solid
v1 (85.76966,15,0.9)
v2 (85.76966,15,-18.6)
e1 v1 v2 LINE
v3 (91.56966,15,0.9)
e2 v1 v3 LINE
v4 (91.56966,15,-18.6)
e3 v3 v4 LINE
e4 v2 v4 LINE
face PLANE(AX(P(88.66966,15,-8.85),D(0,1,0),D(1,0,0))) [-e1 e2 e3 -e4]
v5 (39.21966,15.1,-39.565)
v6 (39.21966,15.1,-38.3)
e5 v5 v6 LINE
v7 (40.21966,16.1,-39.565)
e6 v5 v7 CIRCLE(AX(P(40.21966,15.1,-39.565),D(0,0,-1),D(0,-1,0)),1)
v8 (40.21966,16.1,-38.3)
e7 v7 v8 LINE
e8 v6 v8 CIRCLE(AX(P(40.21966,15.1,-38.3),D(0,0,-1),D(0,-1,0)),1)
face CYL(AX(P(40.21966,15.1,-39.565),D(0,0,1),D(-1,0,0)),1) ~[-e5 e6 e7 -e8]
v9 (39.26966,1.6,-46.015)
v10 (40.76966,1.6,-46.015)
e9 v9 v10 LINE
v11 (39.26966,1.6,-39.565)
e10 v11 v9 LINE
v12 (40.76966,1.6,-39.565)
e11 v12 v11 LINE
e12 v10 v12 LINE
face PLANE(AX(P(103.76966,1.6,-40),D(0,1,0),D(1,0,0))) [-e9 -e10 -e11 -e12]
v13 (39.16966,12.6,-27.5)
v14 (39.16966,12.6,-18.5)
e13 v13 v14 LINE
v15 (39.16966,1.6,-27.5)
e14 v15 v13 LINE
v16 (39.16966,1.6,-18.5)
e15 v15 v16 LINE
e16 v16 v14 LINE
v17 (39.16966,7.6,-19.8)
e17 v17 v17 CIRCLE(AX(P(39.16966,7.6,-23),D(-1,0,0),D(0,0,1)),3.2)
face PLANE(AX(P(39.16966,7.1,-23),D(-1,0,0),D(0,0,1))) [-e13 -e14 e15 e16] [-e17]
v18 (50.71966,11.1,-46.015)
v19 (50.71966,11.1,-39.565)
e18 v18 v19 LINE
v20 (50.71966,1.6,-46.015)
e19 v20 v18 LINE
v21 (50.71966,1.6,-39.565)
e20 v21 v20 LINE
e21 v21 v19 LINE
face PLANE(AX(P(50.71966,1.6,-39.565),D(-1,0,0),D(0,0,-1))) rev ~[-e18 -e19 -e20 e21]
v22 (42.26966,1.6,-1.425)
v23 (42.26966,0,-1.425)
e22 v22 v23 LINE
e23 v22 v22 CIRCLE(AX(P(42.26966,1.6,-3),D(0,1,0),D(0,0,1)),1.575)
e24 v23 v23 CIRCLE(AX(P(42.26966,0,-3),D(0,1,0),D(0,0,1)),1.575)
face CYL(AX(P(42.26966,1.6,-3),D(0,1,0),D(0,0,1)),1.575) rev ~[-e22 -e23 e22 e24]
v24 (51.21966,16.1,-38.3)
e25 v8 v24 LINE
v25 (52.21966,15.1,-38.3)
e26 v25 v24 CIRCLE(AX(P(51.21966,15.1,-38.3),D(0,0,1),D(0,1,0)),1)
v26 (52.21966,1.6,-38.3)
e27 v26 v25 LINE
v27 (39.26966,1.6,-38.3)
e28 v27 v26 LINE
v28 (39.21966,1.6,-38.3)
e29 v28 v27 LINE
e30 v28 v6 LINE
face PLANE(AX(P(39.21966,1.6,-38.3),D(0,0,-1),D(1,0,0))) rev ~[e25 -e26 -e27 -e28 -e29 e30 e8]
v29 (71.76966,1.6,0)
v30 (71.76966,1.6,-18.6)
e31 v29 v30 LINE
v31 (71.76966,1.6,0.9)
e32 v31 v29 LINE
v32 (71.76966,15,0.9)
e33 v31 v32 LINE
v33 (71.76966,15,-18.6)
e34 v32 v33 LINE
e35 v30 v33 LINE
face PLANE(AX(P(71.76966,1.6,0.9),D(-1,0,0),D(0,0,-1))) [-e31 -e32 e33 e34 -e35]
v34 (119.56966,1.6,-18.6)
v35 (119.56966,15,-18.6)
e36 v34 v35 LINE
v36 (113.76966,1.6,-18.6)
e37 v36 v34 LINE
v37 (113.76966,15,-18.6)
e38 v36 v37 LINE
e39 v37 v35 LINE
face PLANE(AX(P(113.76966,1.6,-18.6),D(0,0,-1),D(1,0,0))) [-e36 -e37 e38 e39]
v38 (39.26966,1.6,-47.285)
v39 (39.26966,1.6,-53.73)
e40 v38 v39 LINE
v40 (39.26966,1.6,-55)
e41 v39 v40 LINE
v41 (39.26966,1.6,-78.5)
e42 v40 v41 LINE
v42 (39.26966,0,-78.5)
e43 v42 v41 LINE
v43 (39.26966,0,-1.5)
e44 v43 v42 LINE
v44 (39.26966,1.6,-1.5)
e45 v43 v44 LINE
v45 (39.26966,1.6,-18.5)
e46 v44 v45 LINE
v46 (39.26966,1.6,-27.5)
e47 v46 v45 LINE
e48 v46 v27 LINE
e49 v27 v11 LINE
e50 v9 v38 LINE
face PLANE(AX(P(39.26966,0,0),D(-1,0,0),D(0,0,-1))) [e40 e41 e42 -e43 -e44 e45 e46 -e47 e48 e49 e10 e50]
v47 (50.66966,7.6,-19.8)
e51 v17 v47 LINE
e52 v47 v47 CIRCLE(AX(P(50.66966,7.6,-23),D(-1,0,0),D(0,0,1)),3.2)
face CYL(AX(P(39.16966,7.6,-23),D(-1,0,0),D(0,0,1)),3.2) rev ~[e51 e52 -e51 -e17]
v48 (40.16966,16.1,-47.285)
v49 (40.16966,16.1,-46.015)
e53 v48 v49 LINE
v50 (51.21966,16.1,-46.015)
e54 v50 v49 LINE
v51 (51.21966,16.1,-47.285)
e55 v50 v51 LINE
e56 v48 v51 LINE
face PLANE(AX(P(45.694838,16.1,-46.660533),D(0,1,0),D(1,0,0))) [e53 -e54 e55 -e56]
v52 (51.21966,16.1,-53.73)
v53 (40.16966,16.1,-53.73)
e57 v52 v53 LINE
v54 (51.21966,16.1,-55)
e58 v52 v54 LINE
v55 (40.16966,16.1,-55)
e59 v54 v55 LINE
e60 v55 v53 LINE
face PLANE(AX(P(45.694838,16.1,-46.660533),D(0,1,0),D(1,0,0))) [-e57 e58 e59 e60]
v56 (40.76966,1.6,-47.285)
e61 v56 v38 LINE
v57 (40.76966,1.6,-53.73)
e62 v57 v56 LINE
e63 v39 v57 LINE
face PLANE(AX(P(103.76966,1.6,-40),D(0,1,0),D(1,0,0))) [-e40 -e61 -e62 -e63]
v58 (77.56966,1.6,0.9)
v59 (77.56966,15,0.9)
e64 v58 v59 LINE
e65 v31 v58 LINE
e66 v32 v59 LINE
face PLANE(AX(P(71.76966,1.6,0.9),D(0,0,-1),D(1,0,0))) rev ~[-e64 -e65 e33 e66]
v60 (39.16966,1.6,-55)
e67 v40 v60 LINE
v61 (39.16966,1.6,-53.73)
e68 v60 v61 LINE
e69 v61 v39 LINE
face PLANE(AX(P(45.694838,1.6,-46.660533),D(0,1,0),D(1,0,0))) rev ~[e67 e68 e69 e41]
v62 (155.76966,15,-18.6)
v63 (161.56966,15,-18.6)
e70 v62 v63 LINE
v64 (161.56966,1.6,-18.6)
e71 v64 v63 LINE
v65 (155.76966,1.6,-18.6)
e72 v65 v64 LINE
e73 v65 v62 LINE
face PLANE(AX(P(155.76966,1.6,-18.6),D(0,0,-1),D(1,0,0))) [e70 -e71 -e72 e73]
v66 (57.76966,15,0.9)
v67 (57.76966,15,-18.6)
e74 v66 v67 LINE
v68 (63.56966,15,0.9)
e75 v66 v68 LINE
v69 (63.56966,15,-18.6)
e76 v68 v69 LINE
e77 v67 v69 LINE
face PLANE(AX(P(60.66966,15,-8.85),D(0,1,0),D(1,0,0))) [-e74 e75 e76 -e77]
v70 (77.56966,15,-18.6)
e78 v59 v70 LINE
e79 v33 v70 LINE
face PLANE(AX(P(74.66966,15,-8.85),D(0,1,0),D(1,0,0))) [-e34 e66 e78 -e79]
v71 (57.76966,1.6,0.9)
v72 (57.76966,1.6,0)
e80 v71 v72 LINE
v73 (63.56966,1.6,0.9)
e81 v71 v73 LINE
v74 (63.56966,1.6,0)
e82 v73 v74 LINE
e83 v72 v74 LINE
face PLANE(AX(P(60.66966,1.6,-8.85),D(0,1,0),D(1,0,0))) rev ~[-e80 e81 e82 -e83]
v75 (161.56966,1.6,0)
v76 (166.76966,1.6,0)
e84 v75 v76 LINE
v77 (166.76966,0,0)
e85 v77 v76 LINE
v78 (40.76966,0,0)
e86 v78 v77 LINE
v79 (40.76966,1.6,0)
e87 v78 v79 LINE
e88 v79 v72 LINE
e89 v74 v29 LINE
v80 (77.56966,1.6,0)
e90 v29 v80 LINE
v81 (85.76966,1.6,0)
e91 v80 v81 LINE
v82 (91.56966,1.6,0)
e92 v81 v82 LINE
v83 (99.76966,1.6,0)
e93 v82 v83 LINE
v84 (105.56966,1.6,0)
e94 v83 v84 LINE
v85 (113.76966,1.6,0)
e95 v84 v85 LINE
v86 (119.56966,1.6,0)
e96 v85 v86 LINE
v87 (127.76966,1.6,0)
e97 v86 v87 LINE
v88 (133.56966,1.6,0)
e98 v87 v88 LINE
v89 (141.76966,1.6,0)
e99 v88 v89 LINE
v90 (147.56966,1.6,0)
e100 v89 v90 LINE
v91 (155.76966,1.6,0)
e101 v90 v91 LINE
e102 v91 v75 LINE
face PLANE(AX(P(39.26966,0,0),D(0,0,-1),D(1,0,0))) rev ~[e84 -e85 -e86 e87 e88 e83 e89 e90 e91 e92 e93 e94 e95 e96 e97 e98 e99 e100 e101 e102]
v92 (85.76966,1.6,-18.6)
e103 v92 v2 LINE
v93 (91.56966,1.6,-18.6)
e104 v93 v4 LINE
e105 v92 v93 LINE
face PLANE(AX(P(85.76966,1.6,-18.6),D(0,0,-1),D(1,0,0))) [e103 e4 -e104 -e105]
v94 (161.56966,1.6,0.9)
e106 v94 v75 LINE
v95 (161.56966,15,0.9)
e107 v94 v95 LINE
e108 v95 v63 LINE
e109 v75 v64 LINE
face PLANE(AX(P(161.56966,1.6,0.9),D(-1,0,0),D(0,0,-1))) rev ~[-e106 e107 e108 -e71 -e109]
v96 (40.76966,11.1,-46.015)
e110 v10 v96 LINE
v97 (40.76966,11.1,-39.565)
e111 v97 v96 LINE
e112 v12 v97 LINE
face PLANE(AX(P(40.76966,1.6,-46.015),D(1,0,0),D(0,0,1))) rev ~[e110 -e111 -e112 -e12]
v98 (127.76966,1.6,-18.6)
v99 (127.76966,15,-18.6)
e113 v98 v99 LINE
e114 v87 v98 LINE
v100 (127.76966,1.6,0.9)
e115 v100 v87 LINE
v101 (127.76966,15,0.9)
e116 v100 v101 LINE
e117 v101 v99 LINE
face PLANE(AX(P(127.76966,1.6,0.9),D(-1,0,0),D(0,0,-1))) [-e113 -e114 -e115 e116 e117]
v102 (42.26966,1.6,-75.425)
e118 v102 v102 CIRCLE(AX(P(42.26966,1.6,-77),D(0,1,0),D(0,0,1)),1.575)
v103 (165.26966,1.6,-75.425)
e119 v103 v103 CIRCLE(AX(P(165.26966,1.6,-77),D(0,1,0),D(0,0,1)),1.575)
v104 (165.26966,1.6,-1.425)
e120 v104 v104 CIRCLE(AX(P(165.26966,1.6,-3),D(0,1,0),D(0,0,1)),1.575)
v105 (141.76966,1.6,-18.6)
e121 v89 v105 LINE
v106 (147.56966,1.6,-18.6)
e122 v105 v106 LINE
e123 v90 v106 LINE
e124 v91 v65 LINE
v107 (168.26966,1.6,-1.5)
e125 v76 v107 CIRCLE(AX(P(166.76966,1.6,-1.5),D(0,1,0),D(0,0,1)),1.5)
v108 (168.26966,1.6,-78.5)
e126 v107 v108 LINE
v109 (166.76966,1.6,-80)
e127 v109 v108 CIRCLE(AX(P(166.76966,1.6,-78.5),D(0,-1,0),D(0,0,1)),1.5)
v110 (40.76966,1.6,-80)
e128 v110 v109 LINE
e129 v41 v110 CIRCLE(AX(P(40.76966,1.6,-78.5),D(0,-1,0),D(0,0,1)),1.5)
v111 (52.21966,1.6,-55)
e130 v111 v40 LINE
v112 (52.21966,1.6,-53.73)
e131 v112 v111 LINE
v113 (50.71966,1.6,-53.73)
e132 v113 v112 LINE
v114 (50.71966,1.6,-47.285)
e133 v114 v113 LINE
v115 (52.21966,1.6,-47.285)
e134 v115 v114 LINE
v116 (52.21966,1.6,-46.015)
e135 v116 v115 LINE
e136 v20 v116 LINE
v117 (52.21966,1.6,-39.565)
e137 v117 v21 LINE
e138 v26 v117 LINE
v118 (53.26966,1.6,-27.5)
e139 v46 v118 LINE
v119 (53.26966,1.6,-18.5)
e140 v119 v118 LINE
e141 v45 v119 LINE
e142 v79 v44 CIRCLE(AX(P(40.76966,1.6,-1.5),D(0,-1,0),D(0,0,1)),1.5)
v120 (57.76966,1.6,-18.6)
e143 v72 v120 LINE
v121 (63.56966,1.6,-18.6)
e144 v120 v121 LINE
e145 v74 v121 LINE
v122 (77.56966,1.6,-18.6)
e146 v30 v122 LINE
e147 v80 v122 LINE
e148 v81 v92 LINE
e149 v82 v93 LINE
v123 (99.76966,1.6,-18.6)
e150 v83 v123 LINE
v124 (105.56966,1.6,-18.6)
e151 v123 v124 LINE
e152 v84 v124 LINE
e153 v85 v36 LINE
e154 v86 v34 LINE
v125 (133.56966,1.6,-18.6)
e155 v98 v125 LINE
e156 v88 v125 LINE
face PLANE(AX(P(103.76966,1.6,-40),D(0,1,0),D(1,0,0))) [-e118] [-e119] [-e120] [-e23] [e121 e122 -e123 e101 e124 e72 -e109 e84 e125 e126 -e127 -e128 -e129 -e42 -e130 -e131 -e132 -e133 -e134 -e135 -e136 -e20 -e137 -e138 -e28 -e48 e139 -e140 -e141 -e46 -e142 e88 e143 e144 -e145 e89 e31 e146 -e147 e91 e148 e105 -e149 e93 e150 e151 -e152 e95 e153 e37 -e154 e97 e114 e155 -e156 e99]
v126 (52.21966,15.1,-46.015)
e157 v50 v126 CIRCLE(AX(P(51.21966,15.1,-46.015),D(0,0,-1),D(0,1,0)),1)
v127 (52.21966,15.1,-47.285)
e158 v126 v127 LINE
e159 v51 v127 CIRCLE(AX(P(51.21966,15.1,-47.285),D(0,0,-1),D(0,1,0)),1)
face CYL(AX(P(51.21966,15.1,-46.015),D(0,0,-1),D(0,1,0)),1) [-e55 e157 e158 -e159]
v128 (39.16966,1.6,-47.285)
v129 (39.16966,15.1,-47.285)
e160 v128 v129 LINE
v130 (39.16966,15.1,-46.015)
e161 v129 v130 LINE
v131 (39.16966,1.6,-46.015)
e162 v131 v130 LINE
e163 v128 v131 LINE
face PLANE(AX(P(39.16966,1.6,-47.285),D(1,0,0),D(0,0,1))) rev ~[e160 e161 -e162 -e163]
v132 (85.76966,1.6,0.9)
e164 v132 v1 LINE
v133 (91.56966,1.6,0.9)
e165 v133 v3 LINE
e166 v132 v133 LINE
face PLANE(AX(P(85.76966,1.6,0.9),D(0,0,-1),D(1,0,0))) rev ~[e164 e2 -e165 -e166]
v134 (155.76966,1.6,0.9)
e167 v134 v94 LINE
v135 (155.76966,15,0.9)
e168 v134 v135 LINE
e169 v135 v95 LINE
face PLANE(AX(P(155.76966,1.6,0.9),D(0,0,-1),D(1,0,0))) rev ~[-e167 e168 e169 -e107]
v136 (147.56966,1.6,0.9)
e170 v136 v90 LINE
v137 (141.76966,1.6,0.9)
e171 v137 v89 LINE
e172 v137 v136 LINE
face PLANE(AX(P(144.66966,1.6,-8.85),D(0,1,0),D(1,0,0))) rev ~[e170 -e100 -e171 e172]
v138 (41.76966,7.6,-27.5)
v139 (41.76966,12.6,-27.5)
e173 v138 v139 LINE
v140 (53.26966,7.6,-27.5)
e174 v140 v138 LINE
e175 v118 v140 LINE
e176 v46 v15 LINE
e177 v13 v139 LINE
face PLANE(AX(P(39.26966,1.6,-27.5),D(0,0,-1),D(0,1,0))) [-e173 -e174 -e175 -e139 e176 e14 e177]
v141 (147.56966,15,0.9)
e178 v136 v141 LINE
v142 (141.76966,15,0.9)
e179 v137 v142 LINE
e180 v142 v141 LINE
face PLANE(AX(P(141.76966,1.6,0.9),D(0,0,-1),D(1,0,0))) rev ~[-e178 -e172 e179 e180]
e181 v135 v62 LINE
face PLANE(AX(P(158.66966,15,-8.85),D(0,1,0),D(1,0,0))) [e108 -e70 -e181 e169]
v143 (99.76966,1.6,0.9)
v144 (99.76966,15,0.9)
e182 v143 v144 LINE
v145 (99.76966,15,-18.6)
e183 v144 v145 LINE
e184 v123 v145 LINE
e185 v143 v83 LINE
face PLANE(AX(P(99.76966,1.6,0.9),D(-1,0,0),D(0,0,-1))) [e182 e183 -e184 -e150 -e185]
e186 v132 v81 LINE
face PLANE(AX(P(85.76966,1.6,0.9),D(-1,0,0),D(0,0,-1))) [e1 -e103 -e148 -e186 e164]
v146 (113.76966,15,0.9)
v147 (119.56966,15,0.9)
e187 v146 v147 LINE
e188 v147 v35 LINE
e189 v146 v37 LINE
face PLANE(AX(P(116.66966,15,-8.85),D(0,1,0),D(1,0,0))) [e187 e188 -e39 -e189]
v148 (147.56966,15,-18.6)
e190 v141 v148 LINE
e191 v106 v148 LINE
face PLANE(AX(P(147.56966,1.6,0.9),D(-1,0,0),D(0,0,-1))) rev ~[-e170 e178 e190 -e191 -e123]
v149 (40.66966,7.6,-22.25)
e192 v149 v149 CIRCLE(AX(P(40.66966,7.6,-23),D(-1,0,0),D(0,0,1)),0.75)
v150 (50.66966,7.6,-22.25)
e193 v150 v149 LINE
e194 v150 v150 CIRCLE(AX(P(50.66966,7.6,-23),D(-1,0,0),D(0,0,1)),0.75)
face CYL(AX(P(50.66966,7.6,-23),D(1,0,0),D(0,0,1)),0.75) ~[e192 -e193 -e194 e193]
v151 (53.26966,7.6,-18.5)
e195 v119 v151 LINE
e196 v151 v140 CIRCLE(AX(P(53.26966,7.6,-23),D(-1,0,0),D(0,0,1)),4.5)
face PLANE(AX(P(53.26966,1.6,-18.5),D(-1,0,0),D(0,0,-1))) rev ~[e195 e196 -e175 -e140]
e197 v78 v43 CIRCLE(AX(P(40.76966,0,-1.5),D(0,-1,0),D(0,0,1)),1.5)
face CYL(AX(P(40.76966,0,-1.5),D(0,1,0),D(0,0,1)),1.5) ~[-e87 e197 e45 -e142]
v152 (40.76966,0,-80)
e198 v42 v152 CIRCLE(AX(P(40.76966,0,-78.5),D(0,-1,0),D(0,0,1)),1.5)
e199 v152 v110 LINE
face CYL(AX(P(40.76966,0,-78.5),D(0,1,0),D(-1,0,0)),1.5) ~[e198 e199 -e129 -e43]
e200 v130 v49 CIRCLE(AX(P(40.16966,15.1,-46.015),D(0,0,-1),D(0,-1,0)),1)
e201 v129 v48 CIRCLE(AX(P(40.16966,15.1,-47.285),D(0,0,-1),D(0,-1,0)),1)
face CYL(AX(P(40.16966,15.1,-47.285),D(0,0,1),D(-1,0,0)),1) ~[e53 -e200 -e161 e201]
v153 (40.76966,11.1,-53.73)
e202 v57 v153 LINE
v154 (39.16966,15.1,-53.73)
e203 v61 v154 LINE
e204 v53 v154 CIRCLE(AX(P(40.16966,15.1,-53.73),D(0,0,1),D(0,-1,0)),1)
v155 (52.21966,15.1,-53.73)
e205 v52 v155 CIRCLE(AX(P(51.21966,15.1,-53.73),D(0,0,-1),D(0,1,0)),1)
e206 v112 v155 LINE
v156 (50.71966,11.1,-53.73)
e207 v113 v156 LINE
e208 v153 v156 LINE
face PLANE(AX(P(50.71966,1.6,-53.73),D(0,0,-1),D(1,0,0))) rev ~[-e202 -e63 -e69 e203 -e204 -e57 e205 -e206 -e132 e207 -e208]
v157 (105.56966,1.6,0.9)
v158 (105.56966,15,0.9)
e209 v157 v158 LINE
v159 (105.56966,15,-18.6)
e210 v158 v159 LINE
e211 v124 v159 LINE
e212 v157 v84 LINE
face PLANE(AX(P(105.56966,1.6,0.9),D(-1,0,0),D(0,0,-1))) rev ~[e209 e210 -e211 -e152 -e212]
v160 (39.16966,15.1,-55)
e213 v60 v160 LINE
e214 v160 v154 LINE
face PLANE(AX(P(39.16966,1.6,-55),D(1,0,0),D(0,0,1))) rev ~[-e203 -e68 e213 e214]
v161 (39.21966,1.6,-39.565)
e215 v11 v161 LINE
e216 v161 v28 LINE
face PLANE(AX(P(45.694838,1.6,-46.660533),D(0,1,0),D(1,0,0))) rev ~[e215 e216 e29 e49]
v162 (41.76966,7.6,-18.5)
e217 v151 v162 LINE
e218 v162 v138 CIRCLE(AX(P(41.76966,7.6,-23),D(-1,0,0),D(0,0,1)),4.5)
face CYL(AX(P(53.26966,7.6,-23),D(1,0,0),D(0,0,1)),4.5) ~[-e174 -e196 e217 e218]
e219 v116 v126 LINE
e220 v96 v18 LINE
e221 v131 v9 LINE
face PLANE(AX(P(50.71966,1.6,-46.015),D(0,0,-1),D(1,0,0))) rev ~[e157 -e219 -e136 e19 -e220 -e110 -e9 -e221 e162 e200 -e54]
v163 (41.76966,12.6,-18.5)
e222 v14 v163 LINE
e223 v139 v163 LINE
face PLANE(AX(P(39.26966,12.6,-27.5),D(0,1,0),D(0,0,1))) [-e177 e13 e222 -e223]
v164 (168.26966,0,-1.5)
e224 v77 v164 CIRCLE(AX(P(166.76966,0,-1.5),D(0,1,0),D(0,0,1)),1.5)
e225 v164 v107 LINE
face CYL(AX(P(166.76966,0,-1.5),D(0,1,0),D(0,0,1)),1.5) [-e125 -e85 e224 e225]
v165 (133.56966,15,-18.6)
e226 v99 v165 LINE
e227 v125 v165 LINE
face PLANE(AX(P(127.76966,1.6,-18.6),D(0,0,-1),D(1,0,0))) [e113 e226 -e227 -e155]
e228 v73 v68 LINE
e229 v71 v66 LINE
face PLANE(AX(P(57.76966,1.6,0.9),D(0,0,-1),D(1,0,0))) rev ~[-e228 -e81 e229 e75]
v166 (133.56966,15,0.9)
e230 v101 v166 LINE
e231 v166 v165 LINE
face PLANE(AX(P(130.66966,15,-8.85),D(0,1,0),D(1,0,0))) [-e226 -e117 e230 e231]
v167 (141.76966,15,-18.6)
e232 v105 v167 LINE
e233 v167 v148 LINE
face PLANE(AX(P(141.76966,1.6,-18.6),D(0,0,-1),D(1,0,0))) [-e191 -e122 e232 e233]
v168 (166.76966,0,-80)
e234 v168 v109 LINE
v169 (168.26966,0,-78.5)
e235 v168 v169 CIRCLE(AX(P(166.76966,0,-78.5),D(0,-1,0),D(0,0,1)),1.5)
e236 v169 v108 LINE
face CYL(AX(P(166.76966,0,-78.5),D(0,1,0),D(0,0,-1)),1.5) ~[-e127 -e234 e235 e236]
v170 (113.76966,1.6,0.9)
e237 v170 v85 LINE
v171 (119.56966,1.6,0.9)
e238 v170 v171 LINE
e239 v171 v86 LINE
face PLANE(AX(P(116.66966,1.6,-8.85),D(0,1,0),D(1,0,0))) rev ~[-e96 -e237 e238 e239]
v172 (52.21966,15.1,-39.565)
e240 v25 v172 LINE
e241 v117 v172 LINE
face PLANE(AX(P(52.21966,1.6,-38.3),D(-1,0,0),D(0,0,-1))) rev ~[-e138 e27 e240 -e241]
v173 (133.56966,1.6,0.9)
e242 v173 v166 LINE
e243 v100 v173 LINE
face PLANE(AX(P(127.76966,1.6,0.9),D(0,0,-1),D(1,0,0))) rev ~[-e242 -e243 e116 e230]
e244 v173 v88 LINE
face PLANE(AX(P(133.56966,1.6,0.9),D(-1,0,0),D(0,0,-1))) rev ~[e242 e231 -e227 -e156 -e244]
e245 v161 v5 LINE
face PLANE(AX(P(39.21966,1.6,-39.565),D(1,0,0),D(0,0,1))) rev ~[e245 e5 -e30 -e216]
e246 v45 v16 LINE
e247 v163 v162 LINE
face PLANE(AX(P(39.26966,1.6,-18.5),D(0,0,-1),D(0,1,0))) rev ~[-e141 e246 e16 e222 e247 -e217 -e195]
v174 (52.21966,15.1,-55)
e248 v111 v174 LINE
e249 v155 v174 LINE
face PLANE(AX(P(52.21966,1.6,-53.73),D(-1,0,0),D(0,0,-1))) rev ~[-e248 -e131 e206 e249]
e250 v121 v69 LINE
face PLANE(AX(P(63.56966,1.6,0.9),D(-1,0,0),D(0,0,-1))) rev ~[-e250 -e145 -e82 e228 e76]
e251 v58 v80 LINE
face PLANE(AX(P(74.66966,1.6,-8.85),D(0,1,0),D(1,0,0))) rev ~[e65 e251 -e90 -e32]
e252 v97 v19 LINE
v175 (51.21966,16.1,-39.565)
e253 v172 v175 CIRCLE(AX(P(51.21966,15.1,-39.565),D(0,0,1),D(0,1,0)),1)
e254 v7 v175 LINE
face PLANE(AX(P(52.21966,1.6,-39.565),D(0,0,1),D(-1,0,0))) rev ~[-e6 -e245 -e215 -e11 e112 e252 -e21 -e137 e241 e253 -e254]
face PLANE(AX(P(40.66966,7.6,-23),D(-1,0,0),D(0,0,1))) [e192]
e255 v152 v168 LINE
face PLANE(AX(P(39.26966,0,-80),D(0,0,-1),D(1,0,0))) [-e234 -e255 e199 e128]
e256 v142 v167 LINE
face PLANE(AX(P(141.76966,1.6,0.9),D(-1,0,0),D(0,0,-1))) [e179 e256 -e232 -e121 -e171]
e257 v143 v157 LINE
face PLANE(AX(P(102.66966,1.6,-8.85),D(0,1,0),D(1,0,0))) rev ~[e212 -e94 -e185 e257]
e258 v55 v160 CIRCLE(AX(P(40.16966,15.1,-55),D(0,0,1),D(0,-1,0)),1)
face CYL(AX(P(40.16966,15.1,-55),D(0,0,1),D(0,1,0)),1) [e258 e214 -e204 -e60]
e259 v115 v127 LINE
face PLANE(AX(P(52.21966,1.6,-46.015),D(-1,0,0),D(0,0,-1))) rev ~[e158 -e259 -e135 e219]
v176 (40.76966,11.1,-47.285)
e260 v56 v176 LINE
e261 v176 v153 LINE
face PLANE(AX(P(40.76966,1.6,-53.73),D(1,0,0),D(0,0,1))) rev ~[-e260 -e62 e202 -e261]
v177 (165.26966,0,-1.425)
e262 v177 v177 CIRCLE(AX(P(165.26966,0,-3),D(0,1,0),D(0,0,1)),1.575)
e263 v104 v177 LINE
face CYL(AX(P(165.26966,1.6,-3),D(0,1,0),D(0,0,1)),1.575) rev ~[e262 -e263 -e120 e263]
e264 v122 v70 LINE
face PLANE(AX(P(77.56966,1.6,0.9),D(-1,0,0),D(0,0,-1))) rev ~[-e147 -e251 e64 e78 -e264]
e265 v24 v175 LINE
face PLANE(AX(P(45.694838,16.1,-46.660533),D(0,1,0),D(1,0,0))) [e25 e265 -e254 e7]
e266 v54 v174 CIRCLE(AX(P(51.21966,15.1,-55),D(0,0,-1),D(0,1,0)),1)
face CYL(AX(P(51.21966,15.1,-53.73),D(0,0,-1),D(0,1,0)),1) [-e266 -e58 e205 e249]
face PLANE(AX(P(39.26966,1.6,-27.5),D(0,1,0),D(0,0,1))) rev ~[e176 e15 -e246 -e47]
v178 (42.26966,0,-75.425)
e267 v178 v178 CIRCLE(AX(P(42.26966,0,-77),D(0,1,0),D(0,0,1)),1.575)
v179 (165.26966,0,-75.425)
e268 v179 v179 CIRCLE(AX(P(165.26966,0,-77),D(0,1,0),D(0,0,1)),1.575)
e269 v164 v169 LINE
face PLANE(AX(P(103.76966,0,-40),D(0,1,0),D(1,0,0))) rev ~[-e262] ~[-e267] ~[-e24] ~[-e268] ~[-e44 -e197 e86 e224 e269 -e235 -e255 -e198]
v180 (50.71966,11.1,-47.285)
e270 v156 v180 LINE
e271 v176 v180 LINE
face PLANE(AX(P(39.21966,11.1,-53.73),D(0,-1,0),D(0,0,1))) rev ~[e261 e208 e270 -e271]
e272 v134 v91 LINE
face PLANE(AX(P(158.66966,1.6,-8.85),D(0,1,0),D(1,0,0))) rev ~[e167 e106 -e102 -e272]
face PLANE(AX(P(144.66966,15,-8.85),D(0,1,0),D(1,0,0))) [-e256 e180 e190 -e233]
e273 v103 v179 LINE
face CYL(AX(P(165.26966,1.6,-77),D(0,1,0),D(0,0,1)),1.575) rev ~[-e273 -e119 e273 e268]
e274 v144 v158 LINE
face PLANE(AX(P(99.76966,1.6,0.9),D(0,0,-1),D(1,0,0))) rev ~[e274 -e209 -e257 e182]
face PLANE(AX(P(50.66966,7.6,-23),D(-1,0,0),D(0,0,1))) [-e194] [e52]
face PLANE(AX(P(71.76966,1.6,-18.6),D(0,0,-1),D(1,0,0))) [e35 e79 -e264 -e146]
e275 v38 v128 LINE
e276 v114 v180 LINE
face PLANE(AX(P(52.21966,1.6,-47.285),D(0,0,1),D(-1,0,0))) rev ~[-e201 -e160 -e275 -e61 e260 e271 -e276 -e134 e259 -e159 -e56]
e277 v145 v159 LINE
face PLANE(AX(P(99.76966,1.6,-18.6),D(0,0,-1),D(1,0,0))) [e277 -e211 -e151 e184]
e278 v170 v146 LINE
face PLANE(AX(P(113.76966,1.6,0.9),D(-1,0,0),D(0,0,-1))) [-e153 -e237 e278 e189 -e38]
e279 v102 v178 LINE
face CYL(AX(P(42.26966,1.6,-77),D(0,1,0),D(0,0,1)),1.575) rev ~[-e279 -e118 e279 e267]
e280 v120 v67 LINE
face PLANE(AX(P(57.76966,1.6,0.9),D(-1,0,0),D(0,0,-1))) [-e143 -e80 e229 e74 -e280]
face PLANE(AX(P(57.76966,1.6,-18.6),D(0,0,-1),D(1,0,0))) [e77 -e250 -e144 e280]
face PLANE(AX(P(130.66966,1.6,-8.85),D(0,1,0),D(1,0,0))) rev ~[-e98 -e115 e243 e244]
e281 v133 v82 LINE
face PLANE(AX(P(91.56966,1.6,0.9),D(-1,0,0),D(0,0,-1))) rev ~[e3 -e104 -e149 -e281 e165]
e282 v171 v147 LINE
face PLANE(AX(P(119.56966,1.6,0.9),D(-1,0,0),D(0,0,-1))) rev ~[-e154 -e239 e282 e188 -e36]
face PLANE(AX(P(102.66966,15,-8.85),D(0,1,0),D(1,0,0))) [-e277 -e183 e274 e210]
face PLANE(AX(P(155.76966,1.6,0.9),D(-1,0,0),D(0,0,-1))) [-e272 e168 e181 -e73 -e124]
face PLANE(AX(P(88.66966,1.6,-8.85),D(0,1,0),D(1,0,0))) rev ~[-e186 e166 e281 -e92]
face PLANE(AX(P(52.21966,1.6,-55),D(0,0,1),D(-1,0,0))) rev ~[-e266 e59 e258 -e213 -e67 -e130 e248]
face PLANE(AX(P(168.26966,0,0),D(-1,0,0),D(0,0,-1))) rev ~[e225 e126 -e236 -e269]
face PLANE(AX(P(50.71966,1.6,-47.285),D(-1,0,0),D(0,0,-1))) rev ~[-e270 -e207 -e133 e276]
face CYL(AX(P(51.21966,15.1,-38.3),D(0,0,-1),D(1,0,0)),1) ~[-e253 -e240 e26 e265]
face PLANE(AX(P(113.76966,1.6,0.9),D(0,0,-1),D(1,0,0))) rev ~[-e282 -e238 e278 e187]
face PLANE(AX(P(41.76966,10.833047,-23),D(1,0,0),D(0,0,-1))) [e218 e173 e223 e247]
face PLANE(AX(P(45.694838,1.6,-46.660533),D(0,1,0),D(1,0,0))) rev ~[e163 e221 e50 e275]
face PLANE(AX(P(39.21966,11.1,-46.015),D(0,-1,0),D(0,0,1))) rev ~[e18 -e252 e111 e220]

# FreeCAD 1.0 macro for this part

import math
import FreeCAD as App
import Part
import Sketcher
Q = App.Units.Quantity


def edges_at(feature, points):
    """Names of the edges that pass closest to the given points."""
    edges = feature.Shape.Edges
    near = lambda p: min(range(len(edges)), key=lambda i: edges[i].distToShape(Part.Vertex(*p))[0])
    return sorted({f"Edge{near(p) + 1}" for p in points})

doc = App.newDocument("Part")
params = doc.addObject("Spreadsheet::Sheet", "Params")
for row, (alias, value) in enumerate([
    ("sketch1_width", "129 mm"),
    ("sketch1_height", "80 mm"),
    ("pad1_length", "1.6 mm"),
    ("sketch2_diameter", "3.15 mm"),
    ("sketch3_width", "5.8 mm"),
    ("sketch3_height", "19.5 mm"),
    ("pad2_length", "13.4 mm"),
    ("fillet_radius", "1.5 mm"),
    ("sketch4_width", "14 mm"),
    ("sketch4_height", "9 mm"),
    ("pad3_length", "11 mm"),
    ("sketch5_width", "11 mm"),
    ("sketch5_height", "9 mm"),
    ("pad4_length", "0.1 mm"),
    ("sketch6_radius", "4.5 mm"),
    ("sketch6_width", "5 mm"),
    ("pocket2_length", "11.5 mm"),
    ("sketch7_diameter", "6.4 mm"),
    ("pocket3_length", "11.5 mm"),
    ("sketch8_diameter", "1.5 mm"),
    ("pad5_length", "10 mm"),
    ("sketch9_width", "13 mm"),
    ("sketch9_width2", "1.5 mm"),
    ("sketch9_width3", "1.6 mm"),
    ("sketch9_width4", "13.05 mm"),
    ("sketch9_height", "6.45 mm"),
    ("pad6_length", "14.5 mm"),
    ("sketch10_width", "5 mm"),
    ("sketch10_height", "6.45 mm"),
    ("pocket4_length", "14.5 mm"),
    ("fillet2_radius", "1 mm"),
], start=1):
    params.set(f"A{row}", alias)
    params.set(f"B{row}", "=" + value)
    params.setAlias(f"B{row}", alias)

body = doc.addObject("PartDesign::Body", "Body")

# Sketch on XZ plane
sketch1 = doc.addObject("Sketcher::SketchObject", "Sketch")
body.addObject(sketch1)
sketch1.AttachmentSupport = (doc.XZ_Plane, [""])
sketch1.MapMode = "FlatFace"
sketch1.addGeometry([
    Part.LineSegment(App.Vector(39, -80, 0), App.Vector(39, 0, 0)),
    Part.LineSegment(App.Vector(39, 0, 0), App.Vector(168, 0, 0)),
    Part.LineSegment(App.Vector(168, 0, 0), App.Vector(168, -80, 0)),
    Part.LineSegment(App.Vector(168, -80, 0), App.Vector(39, -80, 0)),
], False)
sketch1.addConstraint([
    Sketcher.Constraint("Coincident", 0, 2, 1, 1),
    Sketcher.Constraint("Coincident", 1, 2, 2, 1),
    Sketcher.Constraint("Coincident", 2, 2, 3, 1),
    Sketcher.Constraint("Coincident", 3, 2, 0, 1),
    Sketcher.Constraint("Vertical", 0),
    Sketcher.Constraint("Horizontal", 1),
    Sketcher.Constraint("Vertical", 2),
    Sketcher.Constraint("Horizontal", 3),
    Sketcher.Constraint("PointOnObject", 0, 2, -1),
    Sketcher.Constraint("DistanceX", 1, 1, 1, 2, Q("129 mm")),
    Sketcher.Constraint("DistanceY", 0, 1, 0, 2, Q("80 mm")),
    Sketcher.Constraint("DistanceX", -1, 1, 0, 2, Q("39.26966 mm")),
])
sketch1.setExpression("Constraints[9]", "Params.sketch1_width")
sketch1.setExpression("Constraints[10]", "Params.sketch1_height")
pad1 = doc.addObject("PartDesign::Pad", "Pad")
body.addObject(pad1)
pad1.Profile = sketch1
pad1.setExpression("Length", "Params.pad1_length")
pad1.Reversed = True

# Sketch on XZ plane
sketch2 = doc.addObject("Sketcher::SketchObject", "Sketch001")
body.addObject(sketch2)
sketch2.AttachmentSupport = (doc.XZ_Plane, [""])
sketch2.MapMode = "FlatFace"
sketch2.AttachmentOffset = App.Placement(App.Vector(0, 0, -1.6), App.Rotation())
sketch2.addGeometry([
    Part.Circle(App.Vector(42.3, -77, 0), App.Vector(0, 0, 1), 1.6),
    Part.Circle(App.Vector(42.3, -3, 0), App.Vector(0, 0, 1), 1.6),
    Part.Circle(App.Vector(165.3, -3, 0), App.Vector(0, 0, 1), 1.6),
    Part.Circle(App.Vector(165.3, -77, 0), App.Vector(0, 0, 1), 1.6),
], False)
sketch2.addConstraint([
    Sketcher.Constraint("Equal", 0, 1),
    Sketcher.Constraint("Equal", 1, 2),
    Sketcher.Constraint("Equal", 2, 3),
    Sketcher.Constraint("Horizontal", 1, 3, 2, 3),
    Sketcher.Constraint("Horizontal", 0, 3, 3, 3),
    Sketcher.Constraint("Vertical", 0, 3, 1, 3),
    Sketcher.Constraint("Vertical", 2, 3, 3, 3),
    Sketcher.Constraint("Diameter", 0, Q("3.15 mm")),
    Sketcher.Constraint("DistanceY", 0, 3, -1, 1, Q("77 mm")),
    Sketcher.Constraint("DistanceY", 1, 3, -1, 1, Q("3 mm")),
    Sketcher.Constraint("DistanceX", 1, 3, 2, 3, Q("123 mm")),
    Sketcher.Constraint("DistanceX", -1, 1, 0, 3, Q("42.26966 mm")),
])
sketch2.setExpression("Constraints[7]", "Params.sketch2_diameter")
pocket1 = doc.addObject("PartDesign::Pocket", "Pocket")
body.addObject(pocket1)
pocket1.Profile = sketch2
pocket1.Type = "ThroughAll"
pocket1.Reversed = True

# Sketch on XZ plane
sketch3 = doc.addObject("Sketcher::SketchObject", "Sketch002")
body.addObject(sketch3)
sketch3.AttachmentSupport = (doc.XZ_Plane, [""])
sketch3.MapMode = "FlatFace"
sketch3.AttachmentOffset = App.Placement(App.Vector(0, 0, -1.6), App.Rotation())
sketch3.addGeometry([
    Part.LineSegment(App.Vector(156, -19, 0), App.Vector(156, 1, 0)),  # 0
    Part.LineSegment(App.Vector(156, 1, 0), App.Vector(162, 1, 0)),  # 1
    Part.LineSegment(App.Vector(162, 1, 0), App.Vector(162, -19, 0)),  # 2
    Part.LineSegment(App.Vector(162, -19, 0), App.Vector(156, -19, 0)),  # 3
    Part.LineSegment(App.Vector(142, -19, 0), App.Vector(142, 1, 0)),  # 4
    Part.LineSegment(App.Vector(142, 1, 0), App.Vector(148, 1, 0)),  # 5
    Part.LineSegment(App.Vector(148, 1, 0), App.Vector(148, -19, 0)),  # 6
    Part.LineSegment(App.Vector(148, -19, 0), App.Vector(142, -19, 0)),  # 7
    Part.LineSegment(App.Vector(128, -19, 0), App.Vector(128, 1, 0)),  # 8
    Part.LineSegment(App.Vector(128, 1, 0), App.Vector(134, 1, 0)),  # 9
    Part.LineSegment(App.Vector(134, 1, 0), App.Vector(134, -19, 0)),  # 10
    Part.LineSegment(App.Vector(134, -19, 0), App.Vector(128, -19, 0)),  # 11
    Part.LineSegment(App.Vector(114, -19, 0), App.Vector(114, 1, 0)),  # 12
    Part.LineSegment(App.Vector(114, 1, 0), App.Vector(120, 1, 0)),  # 13
    Part.LineSegment(App.Vector(120, 1, 0), App.Vector(120, -19, 0)),  # 14
    Part.LineSegment(App.Vector(120, -19, 0), App.Vector(114, -19, 0)),  # 15
    Part.LineSegment(App.Vector(100, -19, 0), App.Vector(100, 1, 0)),  # 16
    Part.LineSegment(App.Vector(100, 1, 0), App.Vector(106, 1, 0)),  # 17
    Part.LineSegment(App.Vector(106, 1, 0), App.Vector(106, -19, 0)),  # 18
    Part.LineSegment(App.Vector(106, -19, 0), App.Vector(100, -19, 0)),  # 19
    Part.LineSegment(App.Vector(86, -19, 0), App.Vector(86, 1, 0)),  # 20
    Part.LineSegment(App.Vector(86, 1, 0), App.Vector(92, 1, 0)),  # 21
    Part.LineSegment(App.Vector(92, 1, 0), App.Vector(92, -19, 0)),  # 22
    Part.LineSegment(App.Vector(92, -19, 0), App.Vector(86, -19, 0)),  # 23
    Part.LineSegment(App.Vector(72, -19, 0), App.Vector(72, 1, 0)),  # 24
    Part.LineSegment(App.Vector(72, 1, 0), App.Vector(78, 1, 0)),  # 25
    Part.LineSegment(App.Vector(78, 1, 0), App.Vector(78, -19, 0)),  # 26
    Part.LineSegment(App.Vector(78, -19, 0), App.Vector(72, -19, 0)),  # 27
    Part.LineSegment(App.Vector(58, -19, 0), App.Vector(58, 1, 0)),  # 28
    Part.LineSegment(App.Vector(58, 1, 0), App.Vector(64, 1, 0)),  # 29
    Part.LineSegment(App.Vector(64, 1, 0), App.Vector(64, -19, 0)),  # 30
    Part.LineSegment(App.Vector(64, -19, 0), App.Vector(58, -19, 0)),  # 31
], False)
sketch3.addConstraint([
    Sketcher.Constraint("Coincident", 0, 2, 1, 1),
    Sketcher.Constraint("Coincident", 1, 2, 2, 1),
    Sketcher.Constraint("Coincident", 2, 2, 3, 1),
    Sketcher.Constraint("Coincident", 3, 2, 0, 1),
    Sketcher.Constraint("Coincident", 4, 2, 5, 1),
    Sketcher.Constraint("Coincident", 5, 2, 6, 1),
    Sketcher.Constraint("Coincident", 6, 2, 7, 1),
    Sketcher.Constraint("Coincident", 7, 2, 4, 1),
    Sketcher.Constraint("Coincident", 8, 2, 9, 1),
    Sketcher.Constraint("Coincident", 9, 2, 10, 1),
    Sketcher.Constraint("Coincident", 10, 2, 11, 1),
    Sketcher.Constraint("Coincident", 11, 2, 8, 1),
    Sketcher.Constraint("Coincident", 12, 2, 13, 1),
    Sketcher.Constraint("Coincident", 13, 2, 14, 1),
    Sketcher.Constraint("Coincident", 14, 2, 15, 1),
    Sketcher.Constraint("Coincident", 15, 2, 12, 1),
    Sketcher.Constraint("Coincident", 16, 2, 17, 1),
    Sketcher.Constraint("Coincident", 17, 2, 18, 1),
    Sketcher.Constraint("Coincident", 18, 2, 19, 1),
    Sketcher.Constraint("Coincident", 19, 2, 16, 1),
    Sketcher.Constraint("Coincident", 20, 2, 21, 1),
    Sketcher.Constraint("Coincident", 21, 2, 22, 1),
    Sketcher.Constraint("Coincident", 22, 2, 23, 1),
    Sketcher.Constraint("Coincident", 23, 2, 20, 1),
    Sketcher.Constraint("Coincident", 24, 2, 25, 1),
    Sketcher.Constraint("Coincident", 25, 2, 26, 1),
    Sketcher.Constraint("Coincident", 26, 2, 27, 1),
    Sketcher.Constraint("Coincident", 27, 2, 24, 1),
    Sketcher.Constraint("Coincident", 28, 2, 29, 1),
    Sketcher.Constraint("Coincident", 29, 2, 30, 1),
    Sketcher.Constraint("Coincident", 30, 2, 31, 1),
    Sketcher.Constraint("Coincident", 31, 2, 28, 1),
    Sketcher.Constraint("Vertical", 0),
    Sketcher.Constraint("Horizontal", 1),
    Sketcher.Constraint("Vertical", 2),
    Sketcher.Constraint("Horizontal", 3),
    Sketcher.Constraint("Vertical", 4),
    Sketcher.Constraint("Horizontal", 5),
    Sketcher.Constraint("Vertical", 6),
    Sketcher.Constraint("Horizontal", 7),
    Sketcher.Constraint("Vertical", 8),
    Sketcher.Constraint("Horizontal", 9),
    Sketcher.Constraint("Vertical", 10),
    Sketcher.Constraint("Horizontal", 11),
    Sketcher.Constraint("Vertical", 12),
    Sketcher.Constraint("Horizontal", 13),
    Sketcher.Constraint("Vertical", 14),
    Sketcher.Constraint("Horizontal", 15),
    Sketcher.Constraint("Vertical", 16),
    Sketcher.Constraint("Horizontal", 17),
    Sketcher.Constraint("Vertical", 18),
    Sketcher.Constraint("Horizontal", 19),
    Sketcher.Constraint("Vertical", 20),
    Sketcher.Constraint("Horizontal", 21),
    Sketcher.Constraint("Vertical", 22),
    Sketcher.Constraint("Horizontal", 23),
    Sketcher.Constraint("Vertical", 24),
    Sketcher.Constraint("Horizontal", 25),
    Sketcher.Constraint("Vertical", 26),
    Sketcher.Constraint("Horizontal", 27),
    Sketcher.Constraint("Vertical", 28),
    Sketcher.Constraint("Horizontal", 29),
    Sketcher.Constraint("Vertical", 30),
    Sketcher.Constraint("Horizontal", 31),
    Sketcher.Constraint("Horizontal", 1, 2, 4, 2),
    Sketcher.Constraint("Horizontal", 3, 2, 6, 2),
    Sketcher.Constraint("Horizontal", 5, 2, 8, 2),
    Sketcher.Constraint("Horizontal", 7, 2, 10, 2),
    Sketcher.Constraint("Horizontal", 9, 2, 12, 2),
    Sketcher.Constraint("Horizontal", 11, 2, 14, 2),
    Sketcher.Constraint("Horizontal", 13, 2, 16, 2),
    Sketcher.Constraint("Horizontal", 15, 2, 18, 2),
    Sketcher.Constraint("Horizontal", 17, 2, 20, 2),
    Sketcher.Constraint("Horizontal", 19, 2, 22, 2),
    Sketcher.Constraint("Horizontal", 21, 2, 24, 2),
    Sketcher.Constraint("Horizontal", 23, 2, 26, 2),
    Sketcher.Constraint("Horizontal", 25, 2, 28, 2),
    Sketcher.Constraint("Horizontal", 27, 2, 30, 2),
    Sketcher.Constraint("Equal", 3, 5),
    Sketcher.Constraint("Equal", 7, 9),
    Sketcher.Constraint("Equal", 11, 13),
    Sketcher.Constraint("Equal", 15, 17),
    Sketcher.Constraint("Equal", 19, 21),
    Sketcher.Constraint("Equal", 23, 25),
    Sketcher.Constraint("Equal", 27, 29),
    Sketcher.Constraint("DistanceX", 1, 1, 1, 2, Q("5.8 mm")),
    Sketcher.Constraint("DistanceY", 0, 1, 0, 2, Q("19.5 mm")),
    Sketcher.Constraint("DistanceX", 4, 2, 0, 2, Q("14 mm")),
    Sketcher.Constraint("DistanceX", 8, 2, 4, 2, Q("14 mm")),
    Sketcher.Constraint("DistanceX", 12, 2, 8, 2, Q("14 mm")),
    Sketcher.Constraint("DistanceX", 16, 2, 12, 2, Q("14 mm")),
    Sketcher.Constraint("DistanceX", 20, 2, 16, 2, Q("14 mm")),
    Sketcher.Constraint("DistanceX", 24, 2, 20, 2, Q("14 mm")),
    Sketcher.Constraint("DistanceX", 28, 2, 24, 2, Q("14 mm")),
    Sketcher.Constraint("DistanceY", -1, 1, 0, 2, Q("0.9 mm")),
    Sketcher.Constraint("DistanceX", -1, 1, 0, 2, Q("155.76966 mm")),
])
sketch3.setExpression("Constraints[85]", "Params.sketch3_width")
sketch3.setExpression("Constraints[86]", "Params.sketch3_height")
pad2 = doc.addObject("PartDesign::Pad", "Pad001")
body.addObject(pad2)
pad2.Profile = sketch3
pad2.setExpression("Length", "Params.pad2_length")
pad2.Reversed = True
doc.recompute()

fillet = doc.addObject("PartDesign::Fillet", "Fillet")
body.addObject(fillet)
fillet.Base = (pad2, edges_at(pad2, [
    (168.27, 0.8, -80),
    (168.27, 0.8, 0),
    (39.27, 0.8, 0),
    (39.27, 0.8, -80),
]))
fillet.setExpression("Radius", "Params.fillet_radius")

# Sketch on XZ plane
sketch4 = doc.addObject("Sketcher::SketchObject", "Sketch003")
body.addObject(sketch4)
sketch4.AttachmentSupport = (doc.XZ_Plane, [""])
sketch4.MapMode = "FlatFace"
sketch4.AttachmentOffset = App.Placement(App.Vector(0, 0, -1.6), App.Rotation())
sketch4.addGeometry([
    Part.LineSegment(App.Vector(39, -28, 0), App.Vector(39, -18, 0)),
    Part.LineSegment(App.Vector(39, -18, 0), App.Vector(53, -18, 0)),
    Part.LineSegment(App.Vector(53, -18, 0), App.Vector(53, -28, 0)),
    Part.LineSegment(App.Vector(53, -28, 0), App.Vector(39, -28, 0)),
], False)
sketch4.addConstraint([
    Sketcher.Constraint("Coincident", 0, 2, 1, 1),
    Sketcher.Constraint("Coincident", 1, 2, 2, 1),
    Sketcher.Constraint("Coincident", 2, 2, 3, 1),
    Sketcher.Constraint("Coincident", 3, 2, 0, 1),
    Sketcher.Constraint("Vertical", 0),
    Sketcher.Constraint("Horizontal", 1),
    Sketcher.Constraint("Vertical", 2),
    Sketcher.Constraint("Horizontal", 3),
    Sketcher.Constraint("DistanceX", 1, 1, 1, 2, Q("14 mm")),
    Sketcher.Constraint("DistanceY", 0, 1, 0, 2, Q("9 mm")),
    Sketcher.Constraint("DistanceY", 0, 2, -1, 1, Q("18.5 mm")),
    Sketcher.Constraint("DistanceX", -1, 1, 0, 2, Q("39.26966 mm")),
])
sketch4.setExpression("Constraints[8]", "Params.sketch4_width")
sketch4.setExpression("Constraints[9]", "Params.sketch4_height")
pad3 = doc.addObject("PartDesign::Pad", "Pad002")
body.addObject(pad3)
pad3.Profile = sketch4
pad3.setExpression("Length", "Params.pad3_length")
pad3.Reversed = True

# Sketch on YZ plane
sketch5 = doc.addObject("Sketcher::SketchObject", "Sketch004")
body.addObject(sketch5)
sketch5.AttachmentSupport = (doc.YZ_Plane, [""])
sketch5.MapMode = "FlatFace"
sketch5.AttachmentOffset = App.Placement(App.Vector(0, 0, 39.26966), App.Rotation())
sketch5.addGeometry([
    Part.LineSegment(App.Vector(13, -28, 0), App.Vector(2, -28, 0)),
    Part.LineSegment(App.Vector(2, -28, 0), App.Vector(2, -18, 0)),
    Part.LineSegment(App.Vector(2, -18, 0), App.Vector(13, -18, 0)),
    Part.LineSegment(App.Vector(13, -18, 0), App.Vector(13, -28, 0)),
], False)
sketch5.addConstraint([
    Sketcher.Constraint("Coincident", 0, 2, 1, 1),
    Sketcher.Constraint("Coincident", 1, 2, 2, 1),
    Sketcher.Constraint("Coincident", 2, 2, 3, 1),
    Sketcher.Constraint("Coincident", 3, 2, 0, 1),
    Sketcher.Constraint("Horizontal", 0),
    Sketcher.Constraint("Vertical", 1),
    Sketcher.Constraint("Horizontal", 2),
    Sketcher.Constraint("Vertical", 3),
    Sketcher.Constraint("DistanceX", 0, 2, 0, 1, Q("11 mm")),
    Sketcher.Constraint("DistanceY", 1, 1, 1, 2, Q("9 mm")),
    Sketcher.Constraint("DistanceX", -1, 1, 0, 2, Q("1.6 mm")),
    Sketcher.Constraint("DistanceY", 0, 2, -1, 1, Q("27.5 mm")),
])
sketch5.setExpression("Constraints[8]", "Params.sketch5_width")
sketch5.setExpression("Constraints[9]", "Params.sketch5_height")
pad4 = doc.addObject("PartDesign::Pad", "Pad003")
body.addObject(pad4)
pad4.Profile = sketch5
pad4.setExpression("Length", "Params.pad4_length")
pad4.Reversed = True

# Sketch on YZ plane
sketch6 = doc.addObject("Sketcher::SketchObject", "Sketch005")
body.addObject(sketch6)
sketch6.AttachmentSupport = (doc.YZ_Plane, [""])
sketch6.MapMode = "FlatFace"
sketch6.AttachmentOffset = App.Placement(App.Vector(0, 0, 53.26966), App.Rotation())
sketch6.addGeometry([
    Part.LineSegment(App.Vector(12.6, -18.5, 0), App.Vector(7.6, -18.5, 0)),
    Part.ArcOfCircle(Part.Circle(App.Vector(7.6, -23, 0), App.Vector(0, 0, 1), 4.5), math.radians(-90), math.radians(90)),
    Part.LineSegment(App.Vector(7.6, -27.5, 0), App.Vector(12.6, -27.5, 0)),
    Part.LineSegment(App.Vector(12.6, -27.5, 0), App.Vector(12.6, -18.5, 0)),
], False)
sketch6.addConstraint([
    Sketcher.Constraint("Tangent", 0, 2, 1, 2),
    Sketcher.Constraint("Tangent", 1, 1, 2, 1),
    Sketcher.Constraint("Coincident", 2, 2, 3, 1),
    Sketcher.Constraint("Coincident", 3, 2, 0, 1),
    Sketcher.Constraint("Horizontal", 0),
    Sketcher.Constraint("Horizontal", 2),
    Sketcher.Constraint("Vertical", 3),
    Sketcher.Constraint("Radius", 1, Q("4.5 mm")),
    Sketcher.Constraint("DistanceX", 0, 2, 0, 1, Q("5 mm")),
    Sketcher.Constraint("DistanceY", 1, 3, -1, 1, Q("23 mm")),
    Sketcher.Constraint("DistanceX", -1, 1, 1, 3, Q("7.6 mm")),
])
sketch6.setExpression("Constraints[7]", "Params.sketch6_radius")
sketch6.setExpression("Constraints[8]", "Params.sketch6_width")
pocket2 = doc.addObject("PartDesign::Pocket", "Pocket001")
body.addObject(pocket2)
pocket2.Profile = sketch6
pocket2.setExpression("Length", "Params.pocket2_length")

# Sketch on YZ plane
sketch7 = doc.addObject("Sketcher::SketchObject", "Sketch006")
body.addObject(sketch7)
sketch7.AttachmentSupport = (doc.YZ_Plane, [""])
sketch7.MapMode = "FlatFace"
sketch7.AttachmentOffset = App.Placement(App.Vector(0, 0, 39.16966), App.Rotation())
sketch7.addGeometry(Part.Circle(App.Vector(7.6, -23, 0), App.Vector(0, 0, 1), 3.2), False)
sketch7.addConstraint([
    Sketcher.Constraint("Diameter", 0, Q("6.4 mm")),
    Sketcher.Constraint("DistanceY", 0, 3, -1, 1, Q("23 mm")),
    Sketcher.Constraint("DistanceX", -1, 1, 0, 3, Q("7.6 mm")),
])
sketch7.setExpression("Constraints[0]", "Params.sketch7_diameter")
pocket3 = doc.addObject("PartDesign::Pocket", "Pocket002")
body.addObject(pocket3)
pocket3.Profile = sketch7
pocket3.setExpression("Length", "Params.pocket3_length")
pocket3.Reversed = True

# Sketch on YZ plane
sketch8 = doc.addObject("Sketcher::SketchObject", "Sketch007")
body.addObject(sketch8)
sketch8.AttachmentSupport = (doc.YZ_Plane, [""])
sketch8.MapMode = "FlatFace"
sketch8.AttachmentOffset = App.Placement(App.Vector(0, 0, 50.66966), App.Rotation())
sketch8.addGeometry(Part.Circle(App.Vector(7.6, -23, 0), App.Vector(0, 0, 1), 0.8), False)
sketch8.addConstraint([
    Sketcher.Constraint("Diameter", 0, Q("1.5 mm")),
    Sketcher.Constraint("DistanceY", 0, 3, -1, 1, Q("23 mm")),
    Sketcher.Constraint("DistanceX", -1, 1, 0, 3, Q("7.6 mm")),
])
sketch8.setExpression("Constraints[0]", "Params.sketch8_diameter")
pad5 = doc.addObject("PartDesign::Pad", "Pad004")
body.addObject(pad5)
pad5.Profile = sketch8
pad5.setExpression("Length", "Params.pad5_length")
pad5.Reversed = True

# Sketch on XZ plane
sketch9 = doc.addObject("Sketcher::SketchObject", "Sketch008")
body.addObject(sketch9)
sketch9.AttachmentSupport = (doc.XZ_Plane, [""])
sketch9.MapMode = "FlatFace"
sketch9.AttachmentOffset = App.Placement(App.Vector(0, 0, -1.6), App.Rotation())
sketch9.addGeometry([
    Part.LineSegment(App.Vector(52.2, -38.3, 0), App.Vector(52.2, -39.6, 0)),  # 0
    Part.LineSegment(App.Vector(52.2, -39.6, 0), App.Vector(50.7, -39.6, 0)),  # 1
    Part.LineSegment(App.Vector(50.7, -39.6, 0), App.Vector(50.7, -46, 0)),  # 2
    Part.LineSegment(App.Vector(50.7, -46, 0), App.Vector(52.2, -46, 0)),  # 3
    Part.LineSegment(App.Vector(52.2, -46, 0), App.Vector(52.2, -47.3, 0)),  # 4
    Part.LineSegment(App.Vector(52.2, -47.3, 0), App.Vector(50.7, -47.3, 0)),  # 5
    Part.LineSegment(App.Vector(50.7, -47.3, 0), App.Vector(50.7, -53.7, 0)),  # 6
    Part.LineSegment(App.Vector(50.7, -53.7, 0), App.Vector(52.2, -53.7, 0)),  # 7
    Part.LineSegment(App.Vector(52.2, -53.7, 0), App.Vector(52.2, -55, 0)),  # 8
    Part.LineSegment(App.Vector(52.2, -55, 0), App.Vector(39.2, -55, 0)),  # 9
    Part.LineSegment(App.Vector(39.2, -55, 0), App.Vector(39.2, -53.7, 0)),  # 10
    Part.LineSegment(App.Vector(39.2, -53.7, 0), App.Vector(40.8, -53.7, 0)),  # 11
    Part.LineSegment(App.Vector(40.8, -53.7, 0), App.Vector(40.8, -47.3, 0)),  # 12
    Part.LineSegment(App.Vector(40.8, -47.3, 0), App.Vector(39.2, -47.3, 0)),  # 13
    Part.LineSegment(App.Vector(39.2, -47.3, 0), App.Vector(39.2, -46, 0)),  # 14
    Part.LineSegment(App.Vector(39.2, -46, 0), App.Vector(40.8, -46, 0)),  # 15
    Part.LineSegment(App.Vector(40.8, -46, 0), App.Vector(40.8, -39.6, 0)),  # 16
    Part.LineSegment(App.Vector(40.8, -39.6, 0), App.Vector(39.2, -39.6, 0)),  # 17
    Part.LineSegment(App.Vector(39.2, -39.6, 0), App.Vector(39.2, -38.3, 0)),  # 18
    Part.LineSegment(App.Vector(39.2, -38.3, 0), App.Vector(52.2, -38.3, 0)),  # 19
], False)
sketch9.addConstraint([
    Sketcher.Constraint("Coincident", 0, 2, 1, 1),
    Sketcher.Constraint("Coincident", 1, 2, 2, 1),
    Sketcher.Constraint("Coincident", 2, 2, 3, 1),
    Sketcher.Constraint("Coincident", 3, 2, 4, 1),
    Sketcher.Constraint("Coincident", 4, 2, 5, 1),
    Sketcher.Constraint("Coincident", 5, 2, 6, 1),
    Sketcher.Constraint("Coincident", 6, 2, 7, 1),
    Sketcher.Constraint("Coincident", 7, 2, 8, 1),
    Sketcher.Constraint("Coincident", 8, 2, 9, 1),
    Sketcher.Constraint("Coincident", 9, 2, 10, 1),
    Sketcher.Constraint("Coincident", 10, 2, 11, 1),
    Sketcher.Constraint("Coincident", 11, 2, 12, 1),
    Sketcher.Constraint("Coincident", 12, 2, 13, 1),
    Sketcher.Constraint("Coincident", 13, 2, 14, 1),
    Sketcher.Constraint("Coincident", 14, 2, 15, 1),
    Sketcher.Constraint("Coincident", 15, 2, 16, 1),
    Sketcher.Constraint("Coincident", 16, 2, 17, 1),
    Sketcher.Constraint("Coincident", 17, 2, 18, 1),
    Sketcher.Constraint("Coincident", 18, 2, 19, 1),
    Sketcher.Constraint("Coincident", 19, 2, 0, 1),
    Sketcher.Constraint("Vertical", 0),
    Sketcher.Constraint("Horizontal", 1),
    Sketcher.Constraint("Vertical", 2),
    Sketcher.Constraint("Horizontal", 3),
    Sketcher.Constraint("Vertical", 4),
    Sketcher.Constraint("Horizontal", 5),
    Sketcher.Constraint("Vertical", 6),
    Sketcher.Constraint("Horizontal", 7),
    Sketcher.Constraint("Vertical", 8),
    Sketcher.Constraint("Horizontal", 9),
    Sketcher.Constraint("Vertical", 10),
    Sketcher.Constraint("Horizontal", 11),
    Sketcher.Constraint("Vertical", 12),
    Sketcher.Constraint("Horizontal", 13),
    Sketcher.Constraint("Vertical", 14),
    Sketcher.Constraint("Horizontal", 15),
    Sketcher.Constraint("Vertical", 16),
    Sketcher.Constraint("Horizontal", 17),
    Sketcher.Constraint("Vertical", 18),
    Sketcher.Constraint("Horizontal", 19),
    Sketcher.Constraint("Horizontal", 7, 2, 10, 2),
    Sketcher.Constraint("Horizontal", 5, 2, 12, 2),
    Sketcher.Constraint("Horizontal", 3, 2, 14, 2),
    Sketcher.Constraint("Horizontal", 1, 2, 16, 2),
    Sketcher.Constraint("Vertical", 0, 2, 3, 2),
    Sketcher.Constraint("Vertical", 2, 2, 5, 2),
    Sketcher.Constraint("Vertical", 4, 2, 7, 2),
    Sketcher.Constraint("Vertical", 10, 2, 13, 2),
    Sketcher.Constraint("Vertical", 12, 2, 15, 2),
    Sketcher.Constraint("Equal", 4, 8),
    Sketcher.Constraint("DistanceX", 19, 1, 19, 2, Q("13 mm")),
    Sketcher.Constraint("DistanceX", 1, 2, 1, 1, Q("1.5 mm")),
    Sketcher.Constraint("DistanceX", 11, 1, 11, 2, Q("1.6 mm")),
    Sketcher.Constraint("DistanceY", 8, 2, -1, 1, Q("55 mm")),
    Sketcher.Constraint("DistanceX", 9, 2, 9, 1, Q("13.05 mm")),
    Sketcher.Constraint("DistanceY", 2, 2, 2, 1, Q("6.45 mm")),
    Sketcher.Constraint("DistanceY", 4, 2, 4, 1, Q("1.27 mm")),
    Sketcher.Constraint("DistanceY", 18, 2, -1, 1, Q("38.3 mm")),
    Sketcher.Constraint("DistanceY", 0, 2, 0, 1, Q("1.265 mm")),
    Sketcher.Constraint("DistanceX", -1, 1, 0, 2, Q("52.21966 mm")),
])
sketch9.setExpression("Constraints[50]", "Params.sketch9_width")
sketch9.setExpression("Constraints[51]", "Params.sketch9_width2")
sketch9.setExpression("Constraints[52]", "Params.sketch9_width3")
sketch9.setExpression("Constraints[54]", "Params.sketch9_width4")
sketch9.setExpression("Constraints[55]", "Params.sketch9_height")
pad6 = doc.addObject("PartDesign::Pad", "Pad005")
body.addObject(pad6)
pad6.Profile = sketch9
pad6.setExpression("Length", "Params.pad6_length")
pad6.Reversed = True

# Sketch on YZ plane
sketch10 = doc.addObject("Sketcher::SketchObject", "Sketch009")
body.addObject(sketch10)
sketch10.AttachmentSupport = (doc.YZ_Plane, [""])
sketch10.MapMode = "FlatFace"
sketch10.AttachmentOffset = App.Placement(App.Vector(0, 0, 39.21966), App.Rotation())
sketch10.addGeometry([
    Part.LineSegment(App.Vector(16, -46, 0), App.Vector(11, -46, 0)),  # 0
    Part.LineSegment(App.Vector(11, -46, 0), App.Vector(11, -40, 0)),  # 1
    Part.LineSegment(App.Vector(11, -40, 0), App.Vector(16, -40, 0)),  # 2
    Part.LineSegment(App.Vector(16, -40, 0), App.Vector(16, -46, 0)),  # 3
    Part.LineSegment(App.Vector(16, -54, 0), App.Vector(11, -54, 0)),  # 4
    Part.LineSegment(App.Vector(11, -54, 0), App.Vector(11, -47, 0)),  # 5
    Part.LineSegment(App.Vector(11, -47, 0), App.Vector(16, -47, 0)),  # 6
    Part.LineSegment(App.Vector(16, -47, 0), App.Vector(16, -54, 0)),  # 7
], False)
sketch10.addConstraint([
    Sketcher.Constraint("Coincident", 0, 2, 1, 1),
    Sketcher.Constraint("Coincident", 1, 2, 2, 1),
    Sketcher.Constraint("Coincident", 2, 2, 3, 1),
    Sketcher.Constraint("Coincident", 3, 2, 0, 1),
    Sketcher.Constraint("Coincident", 4, 2, 5, 1),
    Sketcher.Constraint("Coincident", 5, 2, 6, 1),
    Sketcher.Constraint("Coincident", 6, 2, 7, 1),
    Sketcher.Constraint("Coincident", 7, 2, 4, 1),
    Sketcher.Constraint("Horizontal", 0),
    Sketcher.Constraint("Vertical", 1),
    Sketcher.Constraint("Horizontal", 2),
    Sketcher.Constraint("Vertical", 3),
    Sketcher.Constraint("Horizontal", 4),
    Sketcher.Constraint("Vertical", 5),
    Sketcher.Constraint("Horizontal", 6),
    Sketcher.Constraint("Vertical", 7),
    Sketcher.Constraint("Vertical", 1, 2, 4, 2),
    Sketcher.Constraint("Vertical", 3, 2, 6, 2),
    Sketcher.Constraint("DistanceX", 0, 2, 0, 1, Q("5 mm")),
    Sketcher.Constraint("DistanceY", 1, 1, 1, 2, Q("6.45 mm")),
    Sketcher.Constraint("DistanceX", -1, 1, 0, 2, Q("11.1 mm")),
    Sketcher.Constraint("DistanceY", 5, 1, 5, 2, Q("6.445 mm")),
    Sketcher.Constraint("DistanceY", 4, 2, -1, 1, Q("53.73 mm")),
    Sketcher.Constraint("DistanceY", 5, 2, 0, 2, Q("1.27 mm")),
])
sketch10.setExpression("Constraints[18]", "Params.sketch10_width")
sketch10.setExpression("Constraints[19]", "Params.sketch10_height")
pocket4 = doc.addObject("PartDesign::Pocket", "Pocket003")
body.addObject(pocket4)
pocket4.Profile = sketch10
pocket4.setExpression("Length", "Params.pocket4_length")
pocket4.Reversed = True
doc.recompute()

fillet2 = doc.addObject("PartDesign::Fillet", "Fillet001")
body.addObject(fillet2)
fillet2.Base = (pocket4, edges_at(pocket4, [
    (39.17, 16.1, -46.65),
    (39.22, 16.1, -38.932),
    (52.22, 16.1, -38.932),
    (52.22, 16.1, -46.65),
    (52.22, 16.1, -54.365),
    (39.17, 16.1, -54.365),
]))
fillet2.setExpression("Radius", "Params.fillet2_radius")

doc.recompute()
